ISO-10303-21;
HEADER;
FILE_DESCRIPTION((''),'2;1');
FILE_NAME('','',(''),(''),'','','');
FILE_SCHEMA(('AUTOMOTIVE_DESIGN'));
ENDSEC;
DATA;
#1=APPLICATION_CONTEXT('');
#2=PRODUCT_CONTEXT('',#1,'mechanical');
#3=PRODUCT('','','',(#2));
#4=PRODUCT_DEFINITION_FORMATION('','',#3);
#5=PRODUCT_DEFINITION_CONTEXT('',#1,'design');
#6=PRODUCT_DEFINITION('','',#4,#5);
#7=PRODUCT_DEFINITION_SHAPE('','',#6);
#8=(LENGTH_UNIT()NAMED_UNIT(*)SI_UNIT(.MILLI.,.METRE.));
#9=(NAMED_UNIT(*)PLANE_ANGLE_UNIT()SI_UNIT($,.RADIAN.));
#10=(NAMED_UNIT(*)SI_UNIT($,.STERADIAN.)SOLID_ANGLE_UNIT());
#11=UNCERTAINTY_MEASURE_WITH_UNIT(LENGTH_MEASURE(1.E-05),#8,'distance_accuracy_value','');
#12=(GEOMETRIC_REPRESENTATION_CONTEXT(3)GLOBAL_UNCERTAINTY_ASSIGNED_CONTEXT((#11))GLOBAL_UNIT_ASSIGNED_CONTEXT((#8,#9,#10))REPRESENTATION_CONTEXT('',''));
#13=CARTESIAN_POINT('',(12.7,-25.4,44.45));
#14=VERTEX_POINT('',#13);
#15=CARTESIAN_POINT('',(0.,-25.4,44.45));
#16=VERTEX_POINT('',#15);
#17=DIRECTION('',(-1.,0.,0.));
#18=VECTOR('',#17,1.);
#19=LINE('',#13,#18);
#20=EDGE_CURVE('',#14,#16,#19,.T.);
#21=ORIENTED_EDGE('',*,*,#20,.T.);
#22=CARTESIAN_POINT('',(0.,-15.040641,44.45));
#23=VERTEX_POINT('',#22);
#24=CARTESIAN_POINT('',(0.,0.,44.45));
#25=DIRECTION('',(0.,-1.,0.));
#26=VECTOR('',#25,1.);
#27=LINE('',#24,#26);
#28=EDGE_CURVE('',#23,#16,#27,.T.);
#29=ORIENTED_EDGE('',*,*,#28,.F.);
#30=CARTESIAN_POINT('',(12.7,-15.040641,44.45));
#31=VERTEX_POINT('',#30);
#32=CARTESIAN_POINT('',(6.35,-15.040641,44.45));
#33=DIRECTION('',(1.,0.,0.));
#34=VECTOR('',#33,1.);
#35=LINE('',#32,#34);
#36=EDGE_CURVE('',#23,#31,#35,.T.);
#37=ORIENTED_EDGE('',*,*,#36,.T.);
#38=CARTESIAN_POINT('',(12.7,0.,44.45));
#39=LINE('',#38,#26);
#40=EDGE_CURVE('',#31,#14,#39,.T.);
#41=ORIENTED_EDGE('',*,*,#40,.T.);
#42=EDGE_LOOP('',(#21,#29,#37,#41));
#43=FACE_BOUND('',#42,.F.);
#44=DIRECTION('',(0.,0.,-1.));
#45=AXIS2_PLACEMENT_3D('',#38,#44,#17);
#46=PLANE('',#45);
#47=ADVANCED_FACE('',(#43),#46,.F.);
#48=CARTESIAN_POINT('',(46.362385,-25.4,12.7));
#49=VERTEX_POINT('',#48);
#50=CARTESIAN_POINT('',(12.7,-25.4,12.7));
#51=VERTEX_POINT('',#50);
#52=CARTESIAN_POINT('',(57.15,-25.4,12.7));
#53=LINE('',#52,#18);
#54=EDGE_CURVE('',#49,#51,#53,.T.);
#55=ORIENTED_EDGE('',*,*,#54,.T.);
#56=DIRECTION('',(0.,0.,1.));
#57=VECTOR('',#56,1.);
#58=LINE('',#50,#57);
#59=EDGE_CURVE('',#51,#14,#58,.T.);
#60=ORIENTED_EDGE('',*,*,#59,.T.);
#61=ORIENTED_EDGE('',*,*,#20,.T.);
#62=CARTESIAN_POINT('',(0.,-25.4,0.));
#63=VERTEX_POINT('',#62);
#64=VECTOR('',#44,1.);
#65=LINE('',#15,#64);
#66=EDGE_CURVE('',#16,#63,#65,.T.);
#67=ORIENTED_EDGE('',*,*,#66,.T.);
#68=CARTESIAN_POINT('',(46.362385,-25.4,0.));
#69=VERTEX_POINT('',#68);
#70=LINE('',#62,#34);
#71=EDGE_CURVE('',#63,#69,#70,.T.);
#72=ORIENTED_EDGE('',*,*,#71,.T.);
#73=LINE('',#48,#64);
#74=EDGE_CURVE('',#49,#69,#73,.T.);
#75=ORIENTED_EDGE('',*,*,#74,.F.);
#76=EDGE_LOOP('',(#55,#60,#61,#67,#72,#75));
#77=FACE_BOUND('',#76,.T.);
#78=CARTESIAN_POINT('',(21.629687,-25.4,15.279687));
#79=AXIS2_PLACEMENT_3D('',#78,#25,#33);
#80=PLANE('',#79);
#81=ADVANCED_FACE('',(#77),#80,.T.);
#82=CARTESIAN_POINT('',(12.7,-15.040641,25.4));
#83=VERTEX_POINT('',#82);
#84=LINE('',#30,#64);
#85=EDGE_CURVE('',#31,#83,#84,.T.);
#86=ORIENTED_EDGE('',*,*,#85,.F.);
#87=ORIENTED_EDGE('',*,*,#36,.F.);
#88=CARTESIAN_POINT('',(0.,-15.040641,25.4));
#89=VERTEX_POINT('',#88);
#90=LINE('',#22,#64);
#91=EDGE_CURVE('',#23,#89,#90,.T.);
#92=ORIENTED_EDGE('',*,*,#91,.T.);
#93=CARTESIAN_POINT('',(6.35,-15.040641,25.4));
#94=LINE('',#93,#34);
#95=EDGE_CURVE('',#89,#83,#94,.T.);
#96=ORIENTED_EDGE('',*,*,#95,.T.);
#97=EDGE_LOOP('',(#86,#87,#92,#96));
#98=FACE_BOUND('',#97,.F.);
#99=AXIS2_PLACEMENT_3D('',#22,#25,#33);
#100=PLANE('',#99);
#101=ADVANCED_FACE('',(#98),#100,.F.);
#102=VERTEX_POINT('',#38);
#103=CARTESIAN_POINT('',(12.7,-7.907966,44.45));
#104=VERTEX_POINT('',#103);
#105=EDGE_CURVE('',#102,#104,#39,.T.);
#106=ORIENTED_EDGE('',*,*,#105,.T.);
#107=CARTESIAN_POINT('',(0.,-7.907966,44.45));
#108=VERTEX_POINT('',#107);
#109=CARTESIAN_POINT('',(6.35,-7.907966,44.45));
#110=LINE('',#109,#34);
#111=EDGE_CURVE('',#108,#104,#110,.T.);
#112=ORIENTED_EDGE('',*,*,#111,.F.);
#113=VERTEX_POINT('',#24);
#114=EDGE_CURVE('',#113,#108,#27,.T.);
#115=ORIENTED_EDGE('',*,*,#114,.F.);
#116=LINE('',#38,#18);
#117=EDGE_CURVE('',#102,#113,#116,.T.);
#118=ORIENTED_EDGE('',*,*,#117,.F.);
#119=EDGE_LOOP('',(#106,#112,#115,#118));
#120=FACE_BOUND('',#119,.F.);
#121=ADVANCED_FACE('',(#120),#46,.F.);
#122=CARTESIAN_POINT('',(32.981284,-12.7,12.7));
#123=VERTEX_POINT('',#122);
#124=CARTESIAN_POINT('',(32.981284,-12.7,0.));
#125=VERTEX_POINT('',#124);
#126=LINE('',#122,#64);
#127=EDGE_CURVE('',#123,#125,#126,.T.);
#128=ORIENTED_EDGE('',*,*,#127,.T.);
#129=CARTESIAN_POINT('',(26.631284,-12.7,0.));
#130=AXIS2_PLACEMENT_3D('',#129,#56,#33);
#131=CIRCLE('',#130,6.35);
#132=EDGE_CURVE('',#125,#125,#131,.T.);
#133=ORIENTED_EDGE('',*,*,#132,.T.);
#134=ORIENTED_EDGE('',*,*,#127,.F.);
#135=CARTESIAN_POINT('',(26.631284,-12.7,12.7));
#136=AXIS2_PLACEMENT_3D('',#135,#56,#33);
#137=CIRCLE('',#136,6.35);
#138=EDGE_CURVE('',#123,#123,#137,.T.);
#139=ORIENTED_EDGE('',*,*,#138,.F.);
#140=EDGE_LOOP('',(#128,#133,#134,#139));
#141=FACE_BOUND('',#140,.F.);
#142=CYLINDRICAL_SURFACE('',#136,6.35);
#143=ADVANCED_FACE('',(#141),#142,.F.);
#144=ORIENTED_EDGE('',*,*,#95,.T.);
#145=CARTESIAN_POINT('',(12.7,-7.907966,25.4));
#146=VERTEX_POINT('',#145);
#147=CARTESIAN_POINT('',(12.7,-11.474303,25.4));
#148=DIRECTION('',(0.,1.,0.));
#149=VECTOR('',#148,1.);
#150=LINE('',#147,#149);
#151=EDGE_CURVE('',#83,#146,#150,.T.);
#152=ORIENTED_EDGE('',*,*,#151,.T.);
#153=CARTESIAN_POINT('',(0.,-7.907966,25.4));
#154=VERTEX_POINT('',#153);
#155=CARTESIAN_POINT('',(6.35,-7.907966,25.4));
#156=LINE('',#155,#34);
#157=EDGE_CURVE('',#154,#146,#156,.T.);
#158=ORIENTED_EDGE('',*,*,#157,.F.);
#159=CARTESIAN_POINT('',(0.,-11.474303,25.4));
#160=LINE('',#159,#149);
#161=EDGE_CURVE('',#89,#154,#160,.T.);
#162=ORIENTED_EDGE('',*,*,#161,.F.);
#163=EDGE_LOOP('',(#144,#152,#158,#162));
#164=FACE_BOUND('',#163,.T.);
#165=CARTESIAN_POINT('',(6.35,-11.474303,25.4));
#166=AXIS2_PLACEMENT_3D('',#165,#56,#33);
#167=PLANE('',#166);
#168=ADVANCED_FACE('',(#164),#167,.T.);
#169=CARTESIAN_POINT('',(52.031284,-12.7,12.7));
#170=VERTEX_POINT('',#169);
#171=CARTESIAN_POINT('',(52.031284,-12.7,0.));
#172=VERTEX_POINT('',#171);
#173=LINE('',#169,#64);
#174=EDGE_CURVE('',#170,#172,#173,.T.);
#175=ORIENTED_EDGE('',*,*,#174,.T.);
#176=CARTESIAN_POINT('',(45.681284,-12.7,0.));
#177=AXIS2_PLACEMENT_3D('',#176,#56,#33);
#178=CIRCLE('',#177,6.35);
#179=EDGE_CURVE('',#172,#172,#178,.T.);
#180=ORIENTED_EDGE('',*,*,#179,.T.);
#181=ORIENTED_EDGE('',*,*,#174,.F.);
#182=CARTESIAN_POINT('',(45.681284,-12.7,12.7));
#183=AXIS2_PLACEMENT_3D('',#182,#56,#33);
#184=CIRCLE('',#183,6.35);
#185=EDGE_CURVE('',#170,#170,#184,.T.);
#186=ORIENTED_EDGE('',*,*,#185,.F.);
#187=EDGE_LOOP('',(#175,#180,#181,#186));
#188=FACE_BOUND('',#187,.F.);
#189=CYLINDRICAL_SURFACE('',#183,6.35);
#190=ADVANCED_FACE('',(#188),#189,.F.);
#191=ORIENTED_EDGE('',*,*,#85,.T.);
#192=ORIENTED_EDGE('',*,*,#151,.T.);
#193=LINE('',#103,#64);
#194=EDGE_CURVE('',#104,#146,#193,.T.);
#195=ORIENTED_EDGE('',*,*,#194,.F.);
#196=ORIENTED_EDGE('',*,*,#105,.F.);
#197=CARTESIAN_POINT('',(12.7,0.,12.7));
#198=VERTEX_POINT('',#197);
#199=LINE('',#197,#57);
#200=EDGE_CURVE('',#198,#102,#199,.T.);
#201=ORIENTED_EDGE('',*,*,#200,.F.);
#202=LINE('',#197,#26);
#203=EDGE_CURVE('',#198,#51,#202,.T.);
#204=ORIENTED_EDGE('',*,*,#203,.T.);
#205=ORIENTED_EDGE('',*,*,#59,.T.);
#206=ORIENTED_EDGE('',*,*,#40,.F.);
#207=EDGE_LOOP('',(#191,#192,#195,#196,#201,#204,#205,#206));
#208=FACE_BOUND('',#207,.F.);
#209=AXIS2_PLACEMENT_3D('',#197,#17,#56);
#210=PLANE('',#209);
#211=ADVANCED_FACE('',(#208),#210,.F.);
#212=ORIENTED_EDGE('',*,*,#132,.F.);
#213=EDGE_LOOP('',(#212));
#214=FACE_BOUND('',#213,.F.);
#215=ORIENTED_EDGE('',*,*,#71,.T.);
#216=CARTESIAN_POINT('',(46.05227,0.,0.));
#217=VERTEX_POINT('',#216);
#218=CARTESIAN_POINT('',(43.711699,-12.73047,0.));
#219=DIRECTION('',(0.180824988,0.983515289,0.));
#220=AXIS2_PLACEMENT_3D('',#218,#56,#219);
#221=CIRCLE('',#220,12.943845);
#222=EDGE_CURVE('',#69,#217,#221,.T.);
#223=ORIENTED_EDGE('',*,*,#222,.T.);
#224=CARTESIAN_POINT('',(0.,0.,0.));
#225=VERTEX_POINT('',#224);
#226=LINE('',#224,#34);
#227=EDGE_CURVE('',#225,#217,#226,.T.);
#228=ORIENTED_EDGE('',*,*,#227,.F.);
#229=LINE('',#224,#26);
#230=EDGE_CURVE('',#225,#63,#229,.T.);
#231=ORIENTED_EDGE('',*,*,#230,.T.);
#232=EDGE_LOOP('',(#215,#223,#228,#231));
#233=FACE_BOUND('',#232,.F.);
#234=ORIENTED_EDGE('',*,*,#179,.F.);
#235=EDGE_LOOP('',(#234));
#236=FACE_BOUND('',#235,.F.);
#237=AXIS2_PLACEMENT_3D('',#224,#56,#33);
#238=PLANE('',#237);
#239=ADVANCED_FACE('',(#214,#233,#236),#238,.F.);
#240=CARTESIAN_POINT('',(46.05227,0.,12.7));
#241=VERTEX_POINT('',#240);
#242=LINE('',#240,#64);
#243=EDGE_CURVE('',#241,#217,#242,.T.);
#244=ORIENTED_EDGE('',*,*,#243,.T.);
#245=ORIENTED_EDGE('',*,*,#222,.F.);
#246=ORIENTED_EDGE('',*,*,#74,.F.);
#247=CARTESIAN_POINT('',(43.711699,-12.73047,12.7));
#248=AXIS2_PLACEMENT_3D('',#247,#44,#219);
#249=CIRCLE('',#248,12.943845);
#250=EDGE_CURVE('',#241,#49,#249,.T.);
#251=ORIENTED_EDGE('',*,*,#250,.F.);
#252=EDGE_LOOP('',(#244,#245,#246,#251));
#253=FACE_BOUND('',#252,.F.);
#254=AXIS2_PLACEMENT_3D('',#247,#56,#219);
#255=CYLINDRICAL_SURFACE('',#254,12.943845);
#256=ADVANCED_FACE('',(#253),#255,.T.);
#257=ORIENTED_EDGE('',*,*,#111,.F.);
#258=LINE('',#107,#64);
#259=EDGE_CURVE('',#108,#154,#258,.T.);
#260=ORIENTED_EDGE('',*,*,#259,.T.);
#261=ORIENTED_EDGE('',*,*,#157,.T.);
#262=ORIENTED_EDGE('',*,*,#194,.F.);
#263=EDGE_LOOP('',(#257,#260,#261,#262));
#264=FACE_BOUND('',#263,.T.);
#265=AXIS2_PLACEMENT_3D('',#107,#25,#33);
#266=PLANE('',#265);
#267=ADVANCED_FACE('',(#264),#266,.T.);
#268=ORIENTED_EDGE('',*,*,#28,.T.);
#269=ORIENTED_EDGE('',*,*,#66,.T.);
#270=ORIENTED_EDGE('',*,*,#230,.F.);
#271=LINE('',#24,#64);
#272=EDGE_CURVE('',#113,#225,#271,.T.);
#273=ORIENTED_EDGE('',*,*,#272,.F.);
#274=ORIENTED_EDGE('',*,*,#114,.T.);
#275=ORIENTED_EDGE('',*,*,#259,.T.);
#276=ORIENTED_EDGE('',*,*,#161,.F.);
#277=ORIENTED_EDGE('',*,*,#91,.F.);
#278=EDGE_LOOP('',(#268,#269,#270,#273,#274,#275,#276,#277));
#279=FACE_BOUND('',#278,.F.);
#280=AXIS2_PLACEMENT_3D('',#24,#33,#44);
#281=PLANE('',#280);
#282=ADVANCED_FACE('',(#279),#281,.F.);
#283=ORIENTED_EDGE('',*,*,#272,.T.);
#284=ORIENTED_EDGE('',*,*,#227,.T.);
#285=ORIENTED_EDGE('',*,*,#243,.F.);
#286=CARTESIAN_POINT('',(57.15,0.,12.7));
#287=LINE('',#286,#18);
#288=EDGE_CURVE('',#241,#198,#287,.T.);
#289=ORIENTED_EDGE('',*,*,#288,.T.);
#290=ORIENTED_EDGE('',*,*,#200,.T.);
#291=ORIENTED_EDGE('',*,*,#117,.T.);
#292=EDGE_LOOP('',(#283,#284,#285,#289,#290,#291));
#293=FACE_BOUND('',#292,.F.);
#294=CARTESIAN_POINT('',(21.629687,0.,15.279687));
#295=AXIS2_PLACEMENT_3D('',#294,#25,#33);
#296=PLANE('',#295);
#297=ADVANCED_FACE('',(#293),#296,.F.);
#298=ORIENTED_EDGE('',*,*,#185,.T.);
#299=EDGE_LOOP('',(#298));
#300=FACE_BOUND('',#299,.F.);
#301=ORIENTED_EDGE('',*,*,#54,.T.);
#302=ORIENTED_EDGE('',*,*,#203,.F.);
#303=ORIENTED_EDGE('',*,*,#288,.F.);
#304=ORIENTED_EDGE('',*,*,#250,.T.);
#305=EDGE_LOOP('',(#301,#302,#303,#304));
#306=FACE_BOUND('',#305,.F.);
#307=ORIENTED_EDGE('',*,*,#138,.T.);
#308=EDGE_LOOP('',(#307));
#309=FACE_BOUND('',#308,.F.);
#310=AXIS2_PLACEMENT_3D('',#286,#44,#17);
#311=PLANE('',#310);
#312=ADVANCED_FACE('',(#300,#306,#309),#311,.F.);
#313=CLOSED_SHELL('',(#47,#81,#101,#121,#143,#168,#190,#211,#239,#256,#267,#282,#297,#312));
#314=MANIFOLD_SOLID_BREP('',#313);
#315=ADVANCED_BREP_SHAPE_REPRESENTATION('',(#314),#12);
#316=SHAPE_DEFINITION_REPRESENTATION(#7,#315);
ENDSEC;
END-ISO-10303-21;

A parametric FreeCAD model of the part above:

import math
import FreeCAD as App
import Part
import Sketcher
Q = App.Units.Quantity

doc = App.newDocument("Part")
body = doc.addObject("PartDesign::Body", "Body")

# Sketch on XZ plane
sketch1 = doc.addObject("Sketcher::SketchObject", "Sketch")
body.addObject(sketch1)
sketch1.AttachmentSupport = (doc.XZ_Plane, [""])
sketch1.MapMode = "FlatFace"
sketch1.addGeometry([
    Part.LineSegment(App.Vector(0, 44, 0), App.Vector(0, 0, 0)),  # 0
    Part.LineSegment(App.Vector(0, 0, 0), App.Vector(57, 0, 0)),  # 1
    Part.LineSegment(App.Vector(57, 0, 0), App.Vector(57, 13, 0)),  # 2
    Part.LineSegment(App.Vector(57, 13, 0), App.Vector(13, 13, 0)),  # 3
    Part.LineSegment(App.Vector(13, 13, 0), App.Vector(13, 44, 0)),  # 4
    Part.LineSegment(App.Vector(13, 44, 0), App.Vector(0, 44, 0)),  # 5
], False)
sketch1.addConstraint([
    Sketcher.Constraint("Coincident", 0, 2, 1, 1),
    Sketcher.Constraint("Coincident", 1, 2, 2, 1),
    Sketcher.Constraint("Coincident", 2, 2, 3, 1),
    Sketcher.Constraint("Coincident", 3, 2, 4, 1),
    Sketcher.Constraint("Coincident", 4, 2, 5, 1),
    Sketcher.Constraint("Coincident", 5, 2, 0, 1),
    Sketcher.Constraint("Vertical", 0),
    Sketcher.Constraint("Horizontal", 1),
    Sketcher.Constraint("Vertical", 2),
    Sketcher.Constraint("Horizontal", 3),
    Sketcher.Constraint("Vertical", 4),
    Sketcher.Constraint("Horizontal", 5),
    Sketcher.Constraint("Coincident", 0, 2, -1, 1),
    Sketcher.Constraint("Equal", 3, 0),
    Sketcher.Constraint("Equal", 5, 2),
    Sketcher.Constraint("DistanceX", 5, 2, 5, 1, Q("0.5 in")),
    Sketcher.Constraint("DistanceX", 1, 1, 1, 2, Q("2.25 in")),
])
pad1 = doc.addObject("PartDesign::Pad", "Pad")
body.addObject(pad1)
pad1.Profile = sketch1
pad1.Length = Q("1 in")

# Sketch on XY plane
sketch2 = doc.addObject("Sketcher::SketchObject", "Sketch001")
body.addObject(sketch2)
sketch2.AttachmentSupport = (doc.XY_Plane, [""])
sketch2.MapMode = "FlatFace"
sketch2.AttachmentOffset = App.Placement(App.Vector(0, 0, 0.5 * 25.4), App.Rotation())
sketch2.addGeometry([
    Part.Circle(App.Vector(27, -13, 0), App.Vector(0, 0, 1), 6),
    Part.Circle(App.Vector(46, -13, 0), App.Vector(0, 0, 1), 6),
], False)
sketch2.addConstraint([
    Sketcher.Constraint("Equal", 0, 1),
    Sketcher.Constraint("Horizontal", 0, 3, 1, 3),
    Sketcher.Constraint("Diameter", 0, Q("0.5 in")),
    Sketcher.Constraint("DistanceY", 0, 3, -1, 1, Q("0.5 in")),
    Sketcher.Constraint("DistanceX", 0, 3, 1, 3, Q("0.75 in")),
    Sketcher.Constraint("DistanceX", -1, 1, 0, 3, Q("26.631284 mm")),
])
pocket1 = doc.addObject("PartDesign::Pocket", "Pocket")
body.addObject(pocket1)
pocket1.Profile = sketch2
pocket1.Length = Q("1 in")

# Sketch on XY plane
sketch3 = doc.addObject("Sketcher::SketchObject", "Sketch002")
body.addObject(sketch3)
sketch3.AttachmentSupport = (doc.XY_Plane, [""])
sketch3.MapMode = "FlatFace"
sketch3.AttachmentOffset = App.Placement(App.Vector(0, 0, 0.5 * 25.4), App.Rotation())
sketch3.addGeometry([
    Part.ArcOfCircle(Part.Circle(App.Vector(44, -13, 0), App.Vector(0, 0, 1), 13), math.radians(-78), math.radians(80)),
    Part.LineSegment(App.Vector(46, -25, 0), App.Vector(57, -25, 0)),
    Part.LineSegment(App.Vector(57, -25, 0), App.Vector(57, 0, 0)),
    Part.LineSegment(App.Vector(57, 0, 0), App.Vector(46, 0, 0)),
], False)
sketch3.addConstraint([
    Sketcher.Constraint("Coincident", 0, 1, 1, 1),
    Sketcher.Constraint("Coincident", 1, 2, 2, 1),
    Sketcher.Constraint("Coincident", 2, 2, 3, 1),
    Sketcher.Constraint("Coincident", 3, 2, 0, 2),
    Sketcher.Constraint("Horizontal", 1),
    Sketcher.Constraint("Vertical", 2),
    Sketcher.Constraint("Horizontal", 3),
    Sketcher.Constraint("PointOnObject", 2, 2, -1),
    Sketcher.Constraint("DistanceY", 2, 1, 2, 2, Q("1 in")),
    Sketcher.Constraint("DistanceX", -1, 1, 1, 2, Q("2.25 in")),
    Sketcher.Constraint("Radius", 0, Q("12.943845 mm")),
    Sketcher.Constraint("DistanceX", 3, 2, 3, 1, Q("11.09773 mm")),
    Sketcher.Constraint("DistanceX", -1, 1, 0, 3, Q("43.711699 mm")),
])
pocket2 = doc.addObject("PartDesign::Pocket", "Pocket001")
body.addObject(pocket2)
pocket2.Profile = sketch3
pocket2.Length = Q("1 in")

# Sketch on XY plane
sketch4 = doc.addObject("Sketcher::SketchObject", "Sketch003")
body.addObject(sketch4)
sketch4.AttachmentSupport = (doc.XY_Plane, [""])
sketch4.MapMode = "FlatFace"
sketch4.AttachmentOffset = App.Placement(App.Vector(0, 0, 1.75 * 25.4), App.Rotation())
sketch4.addGeometry([
    Part.LineSegment(App.Vector(0, -8, 0), App.Vector(0, -15, 0)),
    Part.LineSegment(App.Vector(0, -15, 0), App.Vector(13, -15, 0)),
    Part.LineSegment(App.Vector(13, -15, 0), App.Vector(13, -8, 0)),
    Part.LineSegment(App.Vector(13, -8, 0), App.Vector(0, -8, 0)),
], False)
sketch4.addConstraint([
    Sketcher.Constraint("Coincident", 0, 2, 1, 1),
    Sketcher.Constraint("Coincident", 1, 2, 2, 1),
    Sketcher.Constraint("Coincident", 2, 2, 3, 1),
    Sketcher.Constraint("Coincident", 3, 2, 0, 1),
    Sketcher.Constraint("Vertical", 0),
    Sketcher.Constraint("Horizontal", 1),
    Sketcher.Constraint("Vertical", 2),
    Sketcher.Constraint("Horizontal", 3),
    Sketcher.Constraint("PointOnObject", 0, 2, -2),
    Sketcher.Constraint("DistanceX", 1, 1, 1, 2, Q("0.5 in")),
    Sketcher.Constraint("DistanceY", 0, 2, 0, 1, Q("7.132675 mm")),
    Sketcher.Constraint("DistanceY", 0, 2, -1, 1, Q("15.040641 mm")),
])
pocket3 = doc.addObject("PartDesign::Pocket", "Pocket002")
body.addObject(pocket3)
pocket3.Profile = sketch4
pocket3.Length = Q("0.75 in")

doc.recompute()
